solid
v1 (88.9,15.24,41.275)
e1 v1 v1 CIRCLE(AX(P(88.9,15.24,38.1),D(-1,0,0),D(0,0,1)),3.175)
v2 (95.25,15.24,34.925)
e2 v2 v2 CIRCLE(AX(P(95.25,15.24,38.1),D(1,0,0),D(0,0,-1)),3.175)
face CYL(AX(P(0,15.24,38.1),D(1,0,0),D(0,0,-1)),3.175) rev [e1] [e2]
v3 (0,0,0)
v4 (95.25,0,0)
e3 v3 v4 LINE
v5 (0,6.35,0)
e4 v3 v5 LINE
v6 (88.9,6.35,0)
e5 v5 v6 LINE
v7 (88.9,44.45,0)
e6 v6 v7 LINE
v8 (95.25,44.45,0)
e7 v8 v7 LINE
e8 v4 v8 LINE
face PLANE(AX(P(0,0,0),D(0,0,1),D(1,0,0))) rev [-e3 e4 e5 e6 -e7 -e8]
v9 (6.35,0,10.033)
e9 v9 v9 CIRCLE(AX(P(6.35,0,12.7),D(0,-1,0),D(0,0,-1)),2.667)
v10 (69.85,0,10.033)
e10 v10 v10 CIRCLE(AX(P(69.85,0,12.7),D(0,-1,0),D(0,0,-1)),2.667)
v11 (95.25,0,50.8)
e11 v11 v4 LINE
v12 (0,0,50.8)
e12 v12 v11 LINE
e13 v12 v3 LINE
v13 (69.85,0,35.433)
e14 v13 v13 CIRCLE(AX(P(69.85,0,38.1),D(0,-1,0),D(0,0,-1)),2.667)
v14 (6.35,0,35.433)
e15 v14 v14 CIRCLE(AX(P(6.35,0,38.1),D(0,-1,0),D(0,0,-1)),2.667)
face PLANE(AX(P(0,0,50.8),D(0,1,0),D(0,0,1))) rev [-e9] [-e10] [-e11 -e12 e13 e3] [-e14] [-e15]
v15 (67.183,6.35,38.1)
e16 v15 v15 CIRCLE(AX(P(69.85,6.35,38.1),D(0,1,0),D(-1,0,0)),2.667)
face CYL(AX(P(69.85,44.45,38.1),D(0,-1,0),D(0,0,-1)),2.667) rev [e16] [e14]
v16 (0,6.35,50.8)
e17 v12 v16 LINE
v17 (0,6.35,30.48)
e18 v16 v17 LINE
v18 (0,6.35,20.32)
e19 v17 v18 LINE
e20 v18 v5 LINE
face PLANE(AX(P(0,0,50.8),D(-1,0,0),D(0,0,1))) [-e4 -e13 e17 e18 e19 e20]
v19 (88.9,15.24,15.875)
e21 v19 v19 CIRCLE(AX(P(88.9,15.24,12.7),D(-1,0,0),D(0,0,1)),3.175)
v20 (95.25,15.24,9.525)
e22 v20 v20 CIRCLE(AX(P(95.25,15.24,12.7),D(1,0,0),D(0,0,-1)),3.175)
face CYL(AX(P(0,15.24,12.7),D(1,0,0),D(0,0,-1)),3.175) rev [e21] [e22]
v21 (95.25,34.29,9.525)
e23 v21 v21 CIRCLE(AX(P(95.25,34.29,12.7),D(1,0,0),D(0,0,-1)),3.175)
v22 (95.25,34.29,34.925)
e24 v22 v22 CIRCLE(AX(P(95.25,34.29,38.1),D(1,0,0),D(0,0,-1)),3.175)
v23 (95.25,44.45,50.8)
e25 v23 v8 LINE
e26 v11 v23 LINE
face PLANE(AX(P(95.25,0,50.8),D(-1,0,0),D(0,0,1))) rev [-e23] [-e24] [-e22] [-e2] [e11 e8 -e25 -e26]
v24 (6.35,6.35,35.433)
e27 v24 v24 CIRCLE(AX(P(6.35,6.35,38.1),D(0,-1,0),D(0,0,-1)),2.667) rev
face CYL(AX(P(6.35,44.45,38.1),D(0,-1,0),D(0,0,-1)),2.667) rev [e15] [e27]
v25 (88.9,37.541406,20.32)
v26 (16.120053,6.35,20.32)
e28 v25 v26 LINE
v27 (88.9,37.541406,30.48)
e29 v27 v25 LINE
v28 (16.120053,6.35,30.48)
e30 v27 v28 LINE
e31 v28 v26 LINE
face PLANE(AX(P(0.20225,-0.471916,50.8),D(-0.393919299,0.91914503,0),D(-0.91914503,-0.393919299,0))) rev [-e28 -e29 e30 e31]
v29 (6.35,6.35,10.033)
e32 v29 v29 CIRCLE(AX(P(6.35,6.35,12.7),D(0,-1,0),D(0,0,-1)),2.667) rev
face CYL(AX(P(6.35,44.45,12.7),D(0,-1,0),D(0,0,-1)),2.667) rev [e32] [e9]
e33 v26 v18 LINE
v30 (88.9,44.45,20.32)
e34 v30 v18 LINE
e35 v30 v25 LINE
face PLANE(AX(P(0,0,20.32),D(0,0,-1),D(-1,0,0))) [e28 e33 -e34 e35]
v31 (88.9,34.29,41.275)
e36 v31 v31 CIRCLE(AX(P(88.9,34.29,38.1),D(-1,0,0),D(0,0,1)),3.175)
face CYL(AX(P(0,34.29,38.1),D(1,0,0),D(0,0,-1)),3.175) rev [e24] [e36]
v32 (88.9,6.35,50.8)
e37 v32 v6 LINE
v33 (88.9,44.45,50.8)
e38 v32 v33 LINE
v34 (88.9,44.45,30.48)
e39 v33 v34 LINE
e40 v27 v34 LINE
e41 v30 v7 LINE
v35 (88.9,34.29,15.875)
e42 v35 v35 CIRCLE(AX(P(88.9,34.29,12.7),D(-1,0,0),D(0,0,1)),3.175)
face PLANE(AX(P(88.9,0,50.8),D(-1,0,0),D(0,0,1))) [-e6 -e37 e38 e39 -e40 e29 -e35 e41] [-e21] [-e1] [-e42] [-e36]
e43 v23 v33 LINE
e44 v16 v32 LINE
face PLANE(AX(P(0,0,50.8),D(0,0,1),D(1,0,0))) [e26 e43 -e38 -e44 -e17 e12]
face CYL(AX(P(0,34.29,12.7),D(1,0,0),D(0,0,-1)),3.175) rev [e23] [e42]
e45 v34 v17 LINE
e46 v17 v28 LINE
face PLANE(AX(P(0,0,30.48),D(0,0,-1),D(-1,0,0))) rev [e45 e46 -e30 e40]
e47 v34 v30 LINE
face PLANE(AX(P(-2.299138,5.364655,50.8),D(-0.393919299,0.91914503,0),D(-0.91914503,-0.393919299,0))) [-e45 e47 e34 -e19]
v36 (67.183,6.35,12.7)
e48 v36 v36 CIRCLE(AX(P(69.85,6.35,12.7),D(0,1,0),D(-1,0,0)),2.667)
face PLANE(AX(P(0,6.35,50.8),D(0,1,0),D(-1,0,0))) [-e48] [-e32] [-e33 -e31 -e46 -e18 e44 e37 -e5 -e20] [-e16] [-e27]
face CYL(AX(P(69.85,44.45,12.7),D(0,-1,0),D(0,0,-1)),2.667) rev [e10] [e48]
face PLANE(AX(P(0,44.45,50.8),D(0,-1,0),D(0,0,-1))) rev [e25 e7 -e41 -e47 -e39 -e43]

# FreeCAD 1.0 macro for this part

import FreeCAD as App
import Part
import Sketcher
from FreeCAD import Vector
Q = App.Units.Quantity

doc = App.newDocument("Part")
params = doc.addObject("Spreadsheet::Sheet", "Params")
for row, (alias, value) in enumerate([
    ("sketch1_width", "3.75 in"),
    ("sketch1_width2", "0.25 in"),
    ("sketch1_height", "1.75 in"),
    ("pad1_length", "2 in"),
    ("sketch2_diameter", "0.21 in"),
    ("sketch3_width", "3.5 in"),
    ("sketch3_height", "1.5 in"),
    ("pocket2_length", "0.8 in"),
    ("sketch4_width", "3.5 in"),
    ("sketch4_height", "1.5 in"),
    ("pocket3_length", "0.8 in"),
    ("sketch5_diameter", "0.25 in"),
], start=1):
    params.set(f"A{row}", alias)
    params.set(f"B{row}", "=" + value)
    params.setAlias(f"B{row}", alias)

body = doc.addObject("PartDesign::Body", "Body")

sketch1 = doc.addObject("Sketcher::SketchObject", "Sketch")
body.addObject(sketch1)
sketch1.AttachmentSupport = (doc.XY_Plane, [""])
sketch1.MapMode = "FlatFace"
sketch1.addGeometry([
    Part.LineSegment(Vector(89, 44, 0), Vector(0, 6, 0)),
    Part.LineSegment(Vector(0, 6, 0), Vector(0, 0, 0)),
    Part.LineSegment(Vector(0, 0, 0), Vector(95, 0, 0)),
    Part.LineSegment(Vector(95, 0, 0), Vector(95, 44, 0)),
    Part.LineSegment(Vector(95, 44, 0), Vector(89, 44, 0)),
    Part.LineSegment(Vector(16, 6, 0), Vector(89, 38, 0)),
    Part.LineSegment(Vector(89, 38, 0), Vector(89, 6, 0)),
    Part.LineSegment(Vector(89, 6, 0), Vector(16, 6, 0)),
], False)
sketch1.addConstraint([
    Sketcher.Constraint("Coincident", 0, 2, 1, 1),
    Sketcher.Constraint("Coincident", 1, 2, 2, 1),
    Sketcher.Constraint("Coincident", 2, 2, 3, 1),
    Sketcher.Constraint("Coincident", 3, 2, 4, 1),
    Sketcher.Constraint("Coincident", 4, 2, 0, 1),
    Sketcher.Constraint("Coincident", 5, 2, 6, 1),
    Sketcher.Constraint("Coincident", 6, 2, 7, 1),
    Sketcher.Constraint("Coincident", 7, 2, 5, 1),
    Sketcher.Constraint("Vertical", 1),
    Sketcher.Constraint("Horizontal", 2),
    Sketcher.Constraint("Vertical", 3),
    Sketcher.Constraint("Horizontal", 4),
    Sketcher.Constraint("Vertical", 6),
    Sketcher.Constraint("Horizontal", 7),
    Sketcher.Constraint("Coincident", 1, 2, -1, 1),
    Sketcher.Constraint("Parallel", 0, 5),
    Sketcher.Constraint("Horizontal", 0, 2, 6, 2),
    Sketcher.Constraint("Vertical", 4, 2, 5, 2),
    Sketcher.Constraint("Equal", 4, 1),
    Sketcher.Constraint("DistanceX", 2, 1, 2, 2, Q("3.75 in")),
    Sketcher.Constraint("DistanceX", 4, 2, 4, 1, Q("0.25 in")),
    Sketcher.Constraint("DistanceY", 3, 1, 3, 2, Q("1.75 in")),
    Sketcher.Constraint("DistanceX", 7, 2, 7, 1, Q("72.779947 mm")),
])
sketch1.setExpression("Constraints[19]", "Params.sketch1_width")
sketch1.setExpression("Constraints[20]", "Params.sketch1_width2")
sketch1.setExpression("Constraints[21]", "Params.sketch1_height")
pad1 = doc.addObject("PartDesign::Pad", "Pad")
body.addObject(pad1)
pad1.Profile = sketch1
pad1.setExpression("Length", "Params.pad1_length")

sketch2 = doc.addObject("Sketcher::SketchObject", "Sketch001")
body.addObject(sketch2)
sketch2.AttachmentSupport = (doc.XZ_Plane, [""])
sketch2.MapMode = "FlatFace"
sketch2.addGeometry([
    Part.Circle(Vector(6.3, 38.1, 0), Vector(0, 0, 1), 2.7),
    Part.Circle(Vector(6.3, 12.7, 0), Vector(0, 0, 1), 2.7),
    Part.Circle(Vector(69.8, 12.7, 0), Vector(0, 0, 1), 2.7),
    Part.Circle(Vector(69.8, 38.1, 0), Vector(0, 0, 1), 2.7),
], False)
sketch2.addConstraint([
    Sketcher.Constraint("Equal", 0, 1),
    Sketcher.Constraint("Equal", 1, 2),
    Sketcher.Constraint("Equal", 2, 3),
    Sketcher.Constraint("Horizontal", 1, 3, 2, 3),
    Sketcher.Constraint("Horizontal", 0, 3, 3, 3),
    Sketcher.Constraint("Vertical", 0, 3, 1, 3),
    Sketcher.Constraint("Vertical", 2, 3, 3, 3),
    Sketcher.Constraint("Diameter", 0, Q("0.21 in")),
    Sketcher.Constraint("DistanceY", 1, 3, 0, 3, Q("1 in")),
    Sketcher.Constraint("DistanceY", -1, 1, 0, 3, Q("1.5 in")),
    Sketcher.Constraint("DistanceX", 1, 3, 2, 3, Q("2.5 in")),
    Sketcher.Constraint("DistanceX", -1, 1, 0, 3, Q("0.25 in")),
])
sketch2.setExpression("Constraints[7]", "Params.sketch2_diameter")
pocket1 = doc.addObject("PartDesign::Pocket", "Pocket")
body.addObject(pocket1)
pocket1.Profile = sketch2
pocket1.Type = "ThroughAll"

sketch3 = doc.addObject("Sketcher::SketchObject", "Sketch002")
body.addObject(sketch3)
sketch3.AttachmentSupport = (doc.XY_Plane, [""])
sketch3.MapMode = "FlatFace"
sketch3.AttachmentOffset = App.Placement(Vector(0, 0, 2 * 25.4), App.Rotation())
sketch3.addGeometry([
    Part.LineSegment(Vector(0, 44, 0), Vector(0, 6, 0)),
    Part.LineSegment(Vector(0, 6, 0), Vector(89, 6, 0)),
    Part.LineSegment(Vector(89, 6, 0), Vector(89, 44, 0)),
    Part.LineSegment(Vector(89, 44, 0), Vector(0, 44, 0)),
], False)
sketch3.addConstraint([
    Sketcher.Constraint("Coincident", 0, 2, 1, 1),
    Sketcher.Constraint("Coincident", 1, 2, 2, 1),
    Sketcher.Constraint("Coincident", 2, 2, 3, 1),
    Sketcher.Constraint("Coincident", 3, 2, 0, 1),
    Sketcher.Constraint("Vertical", 0),
    Sketcher.Constraint("Horizontal", 1),
    Sketcher.Constraint("Vertical", 2),
    Sketcher.Constraint("Horizontal", 3),
    Sketcher.Constraint("PointOnObject", 0, 2, -2),
    Sketcher.Constraint("DistanceX", 1, 1, 1, 2, Q("3.5 in")),
    Sketcher.Constraint("DistanceY", 0, 2, 0, 1, Q("1.5 in")),
    Sketcher.Constraint("DistanceY", -1, 1, 0, 2, Q("0.25 in")),
])
sketch3.setExpression("Constraints[9]", "Params.sketch3_width")
sketch3.setExpression("Constraints[10]", "Params.sketch3_height")
pocket2 = doc.addObject("PartDesign::Pocket", "Pocket001")
body.addObject(pocket2)
pocket2.Profile = sketch3
pocket2.setExpression("Length", "Params.pocket2_length")

sketch4 = doc.addObject("Sketcher::SketchObject", "Sketch003")
body.addObject(sketch4)
sketch4.AttachmentSupport = (doc.XY_Plane, [""])
sketch4.MapMode = "FlatFace"
sketch4.addGeometry([
    Part.LineSegment(Vector(89, 44, 0), Vector(89, 6, 0)),
    Part.LineSegment(Vector(89, 6, 0), Vector(0, 6, 0)),
    Part.LineSegment(Vector(0, 6, 0), Vector(0, 44, 0)),
    Part.LineSegment(Vector(0, 44, 0), Vector(89, 44, 0)),
], False)
sketch4.addConstraint([
    Sketcher.Constraint("Coincident", 0, 2, 1, 1),
    Sketcher.Constraint("Coincident", 1, 2, 2, 1),
    Sketcher.Constraint("Coincident", 2, 2, 3, 1),
    Sketcher.Constraint("Coincident", 3, 2, 0, 1),
    Sketcher.Constraint("Vertical", 0),
    Sketcher.Constraint("Horizontal", 1),
    Sketcher.Constraint("Vertical", 2),
    Sketcher.Constraint("Horizontal", 3),
    Sketcher.Constraint("PointOnObject", 1, 2, -2),
    Sketcher.Constraint("DistanceX", 1, 2, 1, 1, Q("3.5 in")),
    Sketcher.Constraint("DistanceY", 0, 2, 0, 1, Q("1.5 in")),
    Sketcher.Constraint("DistanceY", -1, 1, 0, 2, Q("0.25 in")),
])
sketch4.setExpression("Constraints[9]", "Params.sketch4_width")
sketch4.setExpression("Constraints[10]", "Params.sketch4_height")
pocket3 = doc.addObject("PartDesign::Pocket", "Pocket002")
body.addObject(pocket3)
pocket3.Profile = sketch4
pocket3.setExpression("Length", "Params.pocket3_length")
pocket3.Reversed = True

sketch5 = doc.addObject("Sketcher::SketchObject", "Sketch004")
body.addObject(sketch5)
sketch5.AttachmentSupport = (doc.YZ_Plane, [""])
sketch5.MapMode = "FlatFace"
sketch5.AttachmentOffset = App.Placement(Vector(0, 0, 3.75 * 25.4), App.Rotation())
sketch5.addGeometry([
    Part.Circle(Vector(15.2, 38.1, 0), Vector(0, 0, 1), 3.2),
    Part.Circle(Vector(15.2, 12.7, 0), Vector(0, 0, 1), 3.2),
    Part.Circle(Vector(34.3, 12.7, 0), Vector(0, 0, 1), 3.2),
    Part.Circle(Vector(34.3, 38.1, 0), Vector(0, 0, 1), 3.2),
], False)
sketch5.addConstraint([
    Sketcher.Constraint("Equal", 0, 1),
    Sketcher.Constraint("Equal", 1, 2),
    Sketcher.Constraint("Equal", 2, 3),
    Sketcher.Constraint("Horizontal", 1, 3, 2, 3),
    Sketcher.Constraint("Horizontal", 0, 3, 3, 3),
    Sketcher.Constraint("Vertical", 0, 3, 1, 3),
    Sketcher.Constraint("Vertical", 2, 3, 3, 3),
    Sketcher.Constraint("Diameter", 0, Q("0.25 in")),
    Sketcher.Constraint("DistanceY", 1, 3, 0, 3, Q("1 in")),
    Sketcher.Constraint("DistanceX", -1, 1, 0, 3, Q("0.6 in")),
    Sketcher.Constraint("DistanceY", -1, 1, 0, 3, Q("1.5 in")),
    Sketcher.Constraint("DistanceX", -1, 1, 2, 3, Q("1.35 in")),
])
sketch5.setExpression("Constraints[7]", "Params.sketch5_diameter")
pocket4 = doc.addObject("PartDesign::Pocket", "Pocket003")
body.addObject(pocket4)
pocket4.Profile = sketch5
pocket4.Type = "ThroughAll"

doc.recompute()
